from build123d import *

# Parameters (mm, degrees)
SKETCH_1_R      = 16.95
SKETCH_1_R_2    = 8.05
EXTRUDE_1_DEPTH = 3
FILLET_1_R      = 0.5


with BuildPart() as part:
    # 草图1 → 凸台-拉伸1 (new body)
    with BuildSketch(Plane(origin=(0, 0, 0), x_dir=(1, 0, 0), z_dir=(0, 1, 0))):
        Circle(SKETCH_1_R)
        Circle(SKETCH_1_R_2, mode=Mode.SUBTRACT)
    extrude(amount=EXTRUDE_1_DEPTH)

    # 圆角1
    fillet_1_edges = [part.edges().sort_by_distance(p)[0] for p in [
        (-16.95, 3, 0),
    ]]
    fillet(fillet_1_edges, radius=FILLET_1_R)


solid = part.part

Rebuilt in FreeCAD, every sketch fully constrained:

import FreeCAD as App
import Part
import Sketcher

V = App.Vector


def edges_at(feature, points):
    """Names of the edges that pass closest to the given points."""
    edges = feature.Shape.Edges
    near = lambda p: min(range(len(edges)), key=lambda i: edges[i].distToShape(Part.Vertex(*p))[0])
    return sorted({f"Edge{near(p) + 1}" for p in points})

doc = App.newDocument("Part")
body = doc.addObject("PartDesign::Body", "Body")

sketch1 = doc.addObject("Sketcher::SketchObject", "Sketch")
body.addObject(sketch1)
sketch1.AttachmentSupport = (doc.XZ_Plane, [""])
sketch1.MapMode = "FlatFace"
sketch1.addGeometry(Part.Circle(V(0, 0, 0), V(0, 0, 1), 17), False)
sketch1.addGeometry(Part.Circle(V(0, 0, 0), V(0, 0, 1), 8), False)
sketch1.addConstraint(Sketcher.Constraint("Coincident", 0, 3, -1, 1))
sketch1.addConstraint(Sketcher.Constraint("Coincident", 1, 3, -1, 1))
sketch1.addConstraint(Sketcher.Constraint("Diameter", 0, 33.9))
sketch1.addConstraint(Sketcher.Constraint("Diameter", 1, 16.1))
pad1 = doc.addObject("PartDesign::Pad", "Pad")
body.addObject(pad1)
pad1.Profile = sketch1
pad1.Length = 3
pad1.Reversed = True
doc.recompute()

fillet = doc.addObject("PartDesign::Fillet", "Fillet")
body.addObject(fillet)
fillet.Base = (pad1, edges_at(pad1, [(-16.95, 3, 0)]))
fillet.Radius = 0.5

doc.recompute()
